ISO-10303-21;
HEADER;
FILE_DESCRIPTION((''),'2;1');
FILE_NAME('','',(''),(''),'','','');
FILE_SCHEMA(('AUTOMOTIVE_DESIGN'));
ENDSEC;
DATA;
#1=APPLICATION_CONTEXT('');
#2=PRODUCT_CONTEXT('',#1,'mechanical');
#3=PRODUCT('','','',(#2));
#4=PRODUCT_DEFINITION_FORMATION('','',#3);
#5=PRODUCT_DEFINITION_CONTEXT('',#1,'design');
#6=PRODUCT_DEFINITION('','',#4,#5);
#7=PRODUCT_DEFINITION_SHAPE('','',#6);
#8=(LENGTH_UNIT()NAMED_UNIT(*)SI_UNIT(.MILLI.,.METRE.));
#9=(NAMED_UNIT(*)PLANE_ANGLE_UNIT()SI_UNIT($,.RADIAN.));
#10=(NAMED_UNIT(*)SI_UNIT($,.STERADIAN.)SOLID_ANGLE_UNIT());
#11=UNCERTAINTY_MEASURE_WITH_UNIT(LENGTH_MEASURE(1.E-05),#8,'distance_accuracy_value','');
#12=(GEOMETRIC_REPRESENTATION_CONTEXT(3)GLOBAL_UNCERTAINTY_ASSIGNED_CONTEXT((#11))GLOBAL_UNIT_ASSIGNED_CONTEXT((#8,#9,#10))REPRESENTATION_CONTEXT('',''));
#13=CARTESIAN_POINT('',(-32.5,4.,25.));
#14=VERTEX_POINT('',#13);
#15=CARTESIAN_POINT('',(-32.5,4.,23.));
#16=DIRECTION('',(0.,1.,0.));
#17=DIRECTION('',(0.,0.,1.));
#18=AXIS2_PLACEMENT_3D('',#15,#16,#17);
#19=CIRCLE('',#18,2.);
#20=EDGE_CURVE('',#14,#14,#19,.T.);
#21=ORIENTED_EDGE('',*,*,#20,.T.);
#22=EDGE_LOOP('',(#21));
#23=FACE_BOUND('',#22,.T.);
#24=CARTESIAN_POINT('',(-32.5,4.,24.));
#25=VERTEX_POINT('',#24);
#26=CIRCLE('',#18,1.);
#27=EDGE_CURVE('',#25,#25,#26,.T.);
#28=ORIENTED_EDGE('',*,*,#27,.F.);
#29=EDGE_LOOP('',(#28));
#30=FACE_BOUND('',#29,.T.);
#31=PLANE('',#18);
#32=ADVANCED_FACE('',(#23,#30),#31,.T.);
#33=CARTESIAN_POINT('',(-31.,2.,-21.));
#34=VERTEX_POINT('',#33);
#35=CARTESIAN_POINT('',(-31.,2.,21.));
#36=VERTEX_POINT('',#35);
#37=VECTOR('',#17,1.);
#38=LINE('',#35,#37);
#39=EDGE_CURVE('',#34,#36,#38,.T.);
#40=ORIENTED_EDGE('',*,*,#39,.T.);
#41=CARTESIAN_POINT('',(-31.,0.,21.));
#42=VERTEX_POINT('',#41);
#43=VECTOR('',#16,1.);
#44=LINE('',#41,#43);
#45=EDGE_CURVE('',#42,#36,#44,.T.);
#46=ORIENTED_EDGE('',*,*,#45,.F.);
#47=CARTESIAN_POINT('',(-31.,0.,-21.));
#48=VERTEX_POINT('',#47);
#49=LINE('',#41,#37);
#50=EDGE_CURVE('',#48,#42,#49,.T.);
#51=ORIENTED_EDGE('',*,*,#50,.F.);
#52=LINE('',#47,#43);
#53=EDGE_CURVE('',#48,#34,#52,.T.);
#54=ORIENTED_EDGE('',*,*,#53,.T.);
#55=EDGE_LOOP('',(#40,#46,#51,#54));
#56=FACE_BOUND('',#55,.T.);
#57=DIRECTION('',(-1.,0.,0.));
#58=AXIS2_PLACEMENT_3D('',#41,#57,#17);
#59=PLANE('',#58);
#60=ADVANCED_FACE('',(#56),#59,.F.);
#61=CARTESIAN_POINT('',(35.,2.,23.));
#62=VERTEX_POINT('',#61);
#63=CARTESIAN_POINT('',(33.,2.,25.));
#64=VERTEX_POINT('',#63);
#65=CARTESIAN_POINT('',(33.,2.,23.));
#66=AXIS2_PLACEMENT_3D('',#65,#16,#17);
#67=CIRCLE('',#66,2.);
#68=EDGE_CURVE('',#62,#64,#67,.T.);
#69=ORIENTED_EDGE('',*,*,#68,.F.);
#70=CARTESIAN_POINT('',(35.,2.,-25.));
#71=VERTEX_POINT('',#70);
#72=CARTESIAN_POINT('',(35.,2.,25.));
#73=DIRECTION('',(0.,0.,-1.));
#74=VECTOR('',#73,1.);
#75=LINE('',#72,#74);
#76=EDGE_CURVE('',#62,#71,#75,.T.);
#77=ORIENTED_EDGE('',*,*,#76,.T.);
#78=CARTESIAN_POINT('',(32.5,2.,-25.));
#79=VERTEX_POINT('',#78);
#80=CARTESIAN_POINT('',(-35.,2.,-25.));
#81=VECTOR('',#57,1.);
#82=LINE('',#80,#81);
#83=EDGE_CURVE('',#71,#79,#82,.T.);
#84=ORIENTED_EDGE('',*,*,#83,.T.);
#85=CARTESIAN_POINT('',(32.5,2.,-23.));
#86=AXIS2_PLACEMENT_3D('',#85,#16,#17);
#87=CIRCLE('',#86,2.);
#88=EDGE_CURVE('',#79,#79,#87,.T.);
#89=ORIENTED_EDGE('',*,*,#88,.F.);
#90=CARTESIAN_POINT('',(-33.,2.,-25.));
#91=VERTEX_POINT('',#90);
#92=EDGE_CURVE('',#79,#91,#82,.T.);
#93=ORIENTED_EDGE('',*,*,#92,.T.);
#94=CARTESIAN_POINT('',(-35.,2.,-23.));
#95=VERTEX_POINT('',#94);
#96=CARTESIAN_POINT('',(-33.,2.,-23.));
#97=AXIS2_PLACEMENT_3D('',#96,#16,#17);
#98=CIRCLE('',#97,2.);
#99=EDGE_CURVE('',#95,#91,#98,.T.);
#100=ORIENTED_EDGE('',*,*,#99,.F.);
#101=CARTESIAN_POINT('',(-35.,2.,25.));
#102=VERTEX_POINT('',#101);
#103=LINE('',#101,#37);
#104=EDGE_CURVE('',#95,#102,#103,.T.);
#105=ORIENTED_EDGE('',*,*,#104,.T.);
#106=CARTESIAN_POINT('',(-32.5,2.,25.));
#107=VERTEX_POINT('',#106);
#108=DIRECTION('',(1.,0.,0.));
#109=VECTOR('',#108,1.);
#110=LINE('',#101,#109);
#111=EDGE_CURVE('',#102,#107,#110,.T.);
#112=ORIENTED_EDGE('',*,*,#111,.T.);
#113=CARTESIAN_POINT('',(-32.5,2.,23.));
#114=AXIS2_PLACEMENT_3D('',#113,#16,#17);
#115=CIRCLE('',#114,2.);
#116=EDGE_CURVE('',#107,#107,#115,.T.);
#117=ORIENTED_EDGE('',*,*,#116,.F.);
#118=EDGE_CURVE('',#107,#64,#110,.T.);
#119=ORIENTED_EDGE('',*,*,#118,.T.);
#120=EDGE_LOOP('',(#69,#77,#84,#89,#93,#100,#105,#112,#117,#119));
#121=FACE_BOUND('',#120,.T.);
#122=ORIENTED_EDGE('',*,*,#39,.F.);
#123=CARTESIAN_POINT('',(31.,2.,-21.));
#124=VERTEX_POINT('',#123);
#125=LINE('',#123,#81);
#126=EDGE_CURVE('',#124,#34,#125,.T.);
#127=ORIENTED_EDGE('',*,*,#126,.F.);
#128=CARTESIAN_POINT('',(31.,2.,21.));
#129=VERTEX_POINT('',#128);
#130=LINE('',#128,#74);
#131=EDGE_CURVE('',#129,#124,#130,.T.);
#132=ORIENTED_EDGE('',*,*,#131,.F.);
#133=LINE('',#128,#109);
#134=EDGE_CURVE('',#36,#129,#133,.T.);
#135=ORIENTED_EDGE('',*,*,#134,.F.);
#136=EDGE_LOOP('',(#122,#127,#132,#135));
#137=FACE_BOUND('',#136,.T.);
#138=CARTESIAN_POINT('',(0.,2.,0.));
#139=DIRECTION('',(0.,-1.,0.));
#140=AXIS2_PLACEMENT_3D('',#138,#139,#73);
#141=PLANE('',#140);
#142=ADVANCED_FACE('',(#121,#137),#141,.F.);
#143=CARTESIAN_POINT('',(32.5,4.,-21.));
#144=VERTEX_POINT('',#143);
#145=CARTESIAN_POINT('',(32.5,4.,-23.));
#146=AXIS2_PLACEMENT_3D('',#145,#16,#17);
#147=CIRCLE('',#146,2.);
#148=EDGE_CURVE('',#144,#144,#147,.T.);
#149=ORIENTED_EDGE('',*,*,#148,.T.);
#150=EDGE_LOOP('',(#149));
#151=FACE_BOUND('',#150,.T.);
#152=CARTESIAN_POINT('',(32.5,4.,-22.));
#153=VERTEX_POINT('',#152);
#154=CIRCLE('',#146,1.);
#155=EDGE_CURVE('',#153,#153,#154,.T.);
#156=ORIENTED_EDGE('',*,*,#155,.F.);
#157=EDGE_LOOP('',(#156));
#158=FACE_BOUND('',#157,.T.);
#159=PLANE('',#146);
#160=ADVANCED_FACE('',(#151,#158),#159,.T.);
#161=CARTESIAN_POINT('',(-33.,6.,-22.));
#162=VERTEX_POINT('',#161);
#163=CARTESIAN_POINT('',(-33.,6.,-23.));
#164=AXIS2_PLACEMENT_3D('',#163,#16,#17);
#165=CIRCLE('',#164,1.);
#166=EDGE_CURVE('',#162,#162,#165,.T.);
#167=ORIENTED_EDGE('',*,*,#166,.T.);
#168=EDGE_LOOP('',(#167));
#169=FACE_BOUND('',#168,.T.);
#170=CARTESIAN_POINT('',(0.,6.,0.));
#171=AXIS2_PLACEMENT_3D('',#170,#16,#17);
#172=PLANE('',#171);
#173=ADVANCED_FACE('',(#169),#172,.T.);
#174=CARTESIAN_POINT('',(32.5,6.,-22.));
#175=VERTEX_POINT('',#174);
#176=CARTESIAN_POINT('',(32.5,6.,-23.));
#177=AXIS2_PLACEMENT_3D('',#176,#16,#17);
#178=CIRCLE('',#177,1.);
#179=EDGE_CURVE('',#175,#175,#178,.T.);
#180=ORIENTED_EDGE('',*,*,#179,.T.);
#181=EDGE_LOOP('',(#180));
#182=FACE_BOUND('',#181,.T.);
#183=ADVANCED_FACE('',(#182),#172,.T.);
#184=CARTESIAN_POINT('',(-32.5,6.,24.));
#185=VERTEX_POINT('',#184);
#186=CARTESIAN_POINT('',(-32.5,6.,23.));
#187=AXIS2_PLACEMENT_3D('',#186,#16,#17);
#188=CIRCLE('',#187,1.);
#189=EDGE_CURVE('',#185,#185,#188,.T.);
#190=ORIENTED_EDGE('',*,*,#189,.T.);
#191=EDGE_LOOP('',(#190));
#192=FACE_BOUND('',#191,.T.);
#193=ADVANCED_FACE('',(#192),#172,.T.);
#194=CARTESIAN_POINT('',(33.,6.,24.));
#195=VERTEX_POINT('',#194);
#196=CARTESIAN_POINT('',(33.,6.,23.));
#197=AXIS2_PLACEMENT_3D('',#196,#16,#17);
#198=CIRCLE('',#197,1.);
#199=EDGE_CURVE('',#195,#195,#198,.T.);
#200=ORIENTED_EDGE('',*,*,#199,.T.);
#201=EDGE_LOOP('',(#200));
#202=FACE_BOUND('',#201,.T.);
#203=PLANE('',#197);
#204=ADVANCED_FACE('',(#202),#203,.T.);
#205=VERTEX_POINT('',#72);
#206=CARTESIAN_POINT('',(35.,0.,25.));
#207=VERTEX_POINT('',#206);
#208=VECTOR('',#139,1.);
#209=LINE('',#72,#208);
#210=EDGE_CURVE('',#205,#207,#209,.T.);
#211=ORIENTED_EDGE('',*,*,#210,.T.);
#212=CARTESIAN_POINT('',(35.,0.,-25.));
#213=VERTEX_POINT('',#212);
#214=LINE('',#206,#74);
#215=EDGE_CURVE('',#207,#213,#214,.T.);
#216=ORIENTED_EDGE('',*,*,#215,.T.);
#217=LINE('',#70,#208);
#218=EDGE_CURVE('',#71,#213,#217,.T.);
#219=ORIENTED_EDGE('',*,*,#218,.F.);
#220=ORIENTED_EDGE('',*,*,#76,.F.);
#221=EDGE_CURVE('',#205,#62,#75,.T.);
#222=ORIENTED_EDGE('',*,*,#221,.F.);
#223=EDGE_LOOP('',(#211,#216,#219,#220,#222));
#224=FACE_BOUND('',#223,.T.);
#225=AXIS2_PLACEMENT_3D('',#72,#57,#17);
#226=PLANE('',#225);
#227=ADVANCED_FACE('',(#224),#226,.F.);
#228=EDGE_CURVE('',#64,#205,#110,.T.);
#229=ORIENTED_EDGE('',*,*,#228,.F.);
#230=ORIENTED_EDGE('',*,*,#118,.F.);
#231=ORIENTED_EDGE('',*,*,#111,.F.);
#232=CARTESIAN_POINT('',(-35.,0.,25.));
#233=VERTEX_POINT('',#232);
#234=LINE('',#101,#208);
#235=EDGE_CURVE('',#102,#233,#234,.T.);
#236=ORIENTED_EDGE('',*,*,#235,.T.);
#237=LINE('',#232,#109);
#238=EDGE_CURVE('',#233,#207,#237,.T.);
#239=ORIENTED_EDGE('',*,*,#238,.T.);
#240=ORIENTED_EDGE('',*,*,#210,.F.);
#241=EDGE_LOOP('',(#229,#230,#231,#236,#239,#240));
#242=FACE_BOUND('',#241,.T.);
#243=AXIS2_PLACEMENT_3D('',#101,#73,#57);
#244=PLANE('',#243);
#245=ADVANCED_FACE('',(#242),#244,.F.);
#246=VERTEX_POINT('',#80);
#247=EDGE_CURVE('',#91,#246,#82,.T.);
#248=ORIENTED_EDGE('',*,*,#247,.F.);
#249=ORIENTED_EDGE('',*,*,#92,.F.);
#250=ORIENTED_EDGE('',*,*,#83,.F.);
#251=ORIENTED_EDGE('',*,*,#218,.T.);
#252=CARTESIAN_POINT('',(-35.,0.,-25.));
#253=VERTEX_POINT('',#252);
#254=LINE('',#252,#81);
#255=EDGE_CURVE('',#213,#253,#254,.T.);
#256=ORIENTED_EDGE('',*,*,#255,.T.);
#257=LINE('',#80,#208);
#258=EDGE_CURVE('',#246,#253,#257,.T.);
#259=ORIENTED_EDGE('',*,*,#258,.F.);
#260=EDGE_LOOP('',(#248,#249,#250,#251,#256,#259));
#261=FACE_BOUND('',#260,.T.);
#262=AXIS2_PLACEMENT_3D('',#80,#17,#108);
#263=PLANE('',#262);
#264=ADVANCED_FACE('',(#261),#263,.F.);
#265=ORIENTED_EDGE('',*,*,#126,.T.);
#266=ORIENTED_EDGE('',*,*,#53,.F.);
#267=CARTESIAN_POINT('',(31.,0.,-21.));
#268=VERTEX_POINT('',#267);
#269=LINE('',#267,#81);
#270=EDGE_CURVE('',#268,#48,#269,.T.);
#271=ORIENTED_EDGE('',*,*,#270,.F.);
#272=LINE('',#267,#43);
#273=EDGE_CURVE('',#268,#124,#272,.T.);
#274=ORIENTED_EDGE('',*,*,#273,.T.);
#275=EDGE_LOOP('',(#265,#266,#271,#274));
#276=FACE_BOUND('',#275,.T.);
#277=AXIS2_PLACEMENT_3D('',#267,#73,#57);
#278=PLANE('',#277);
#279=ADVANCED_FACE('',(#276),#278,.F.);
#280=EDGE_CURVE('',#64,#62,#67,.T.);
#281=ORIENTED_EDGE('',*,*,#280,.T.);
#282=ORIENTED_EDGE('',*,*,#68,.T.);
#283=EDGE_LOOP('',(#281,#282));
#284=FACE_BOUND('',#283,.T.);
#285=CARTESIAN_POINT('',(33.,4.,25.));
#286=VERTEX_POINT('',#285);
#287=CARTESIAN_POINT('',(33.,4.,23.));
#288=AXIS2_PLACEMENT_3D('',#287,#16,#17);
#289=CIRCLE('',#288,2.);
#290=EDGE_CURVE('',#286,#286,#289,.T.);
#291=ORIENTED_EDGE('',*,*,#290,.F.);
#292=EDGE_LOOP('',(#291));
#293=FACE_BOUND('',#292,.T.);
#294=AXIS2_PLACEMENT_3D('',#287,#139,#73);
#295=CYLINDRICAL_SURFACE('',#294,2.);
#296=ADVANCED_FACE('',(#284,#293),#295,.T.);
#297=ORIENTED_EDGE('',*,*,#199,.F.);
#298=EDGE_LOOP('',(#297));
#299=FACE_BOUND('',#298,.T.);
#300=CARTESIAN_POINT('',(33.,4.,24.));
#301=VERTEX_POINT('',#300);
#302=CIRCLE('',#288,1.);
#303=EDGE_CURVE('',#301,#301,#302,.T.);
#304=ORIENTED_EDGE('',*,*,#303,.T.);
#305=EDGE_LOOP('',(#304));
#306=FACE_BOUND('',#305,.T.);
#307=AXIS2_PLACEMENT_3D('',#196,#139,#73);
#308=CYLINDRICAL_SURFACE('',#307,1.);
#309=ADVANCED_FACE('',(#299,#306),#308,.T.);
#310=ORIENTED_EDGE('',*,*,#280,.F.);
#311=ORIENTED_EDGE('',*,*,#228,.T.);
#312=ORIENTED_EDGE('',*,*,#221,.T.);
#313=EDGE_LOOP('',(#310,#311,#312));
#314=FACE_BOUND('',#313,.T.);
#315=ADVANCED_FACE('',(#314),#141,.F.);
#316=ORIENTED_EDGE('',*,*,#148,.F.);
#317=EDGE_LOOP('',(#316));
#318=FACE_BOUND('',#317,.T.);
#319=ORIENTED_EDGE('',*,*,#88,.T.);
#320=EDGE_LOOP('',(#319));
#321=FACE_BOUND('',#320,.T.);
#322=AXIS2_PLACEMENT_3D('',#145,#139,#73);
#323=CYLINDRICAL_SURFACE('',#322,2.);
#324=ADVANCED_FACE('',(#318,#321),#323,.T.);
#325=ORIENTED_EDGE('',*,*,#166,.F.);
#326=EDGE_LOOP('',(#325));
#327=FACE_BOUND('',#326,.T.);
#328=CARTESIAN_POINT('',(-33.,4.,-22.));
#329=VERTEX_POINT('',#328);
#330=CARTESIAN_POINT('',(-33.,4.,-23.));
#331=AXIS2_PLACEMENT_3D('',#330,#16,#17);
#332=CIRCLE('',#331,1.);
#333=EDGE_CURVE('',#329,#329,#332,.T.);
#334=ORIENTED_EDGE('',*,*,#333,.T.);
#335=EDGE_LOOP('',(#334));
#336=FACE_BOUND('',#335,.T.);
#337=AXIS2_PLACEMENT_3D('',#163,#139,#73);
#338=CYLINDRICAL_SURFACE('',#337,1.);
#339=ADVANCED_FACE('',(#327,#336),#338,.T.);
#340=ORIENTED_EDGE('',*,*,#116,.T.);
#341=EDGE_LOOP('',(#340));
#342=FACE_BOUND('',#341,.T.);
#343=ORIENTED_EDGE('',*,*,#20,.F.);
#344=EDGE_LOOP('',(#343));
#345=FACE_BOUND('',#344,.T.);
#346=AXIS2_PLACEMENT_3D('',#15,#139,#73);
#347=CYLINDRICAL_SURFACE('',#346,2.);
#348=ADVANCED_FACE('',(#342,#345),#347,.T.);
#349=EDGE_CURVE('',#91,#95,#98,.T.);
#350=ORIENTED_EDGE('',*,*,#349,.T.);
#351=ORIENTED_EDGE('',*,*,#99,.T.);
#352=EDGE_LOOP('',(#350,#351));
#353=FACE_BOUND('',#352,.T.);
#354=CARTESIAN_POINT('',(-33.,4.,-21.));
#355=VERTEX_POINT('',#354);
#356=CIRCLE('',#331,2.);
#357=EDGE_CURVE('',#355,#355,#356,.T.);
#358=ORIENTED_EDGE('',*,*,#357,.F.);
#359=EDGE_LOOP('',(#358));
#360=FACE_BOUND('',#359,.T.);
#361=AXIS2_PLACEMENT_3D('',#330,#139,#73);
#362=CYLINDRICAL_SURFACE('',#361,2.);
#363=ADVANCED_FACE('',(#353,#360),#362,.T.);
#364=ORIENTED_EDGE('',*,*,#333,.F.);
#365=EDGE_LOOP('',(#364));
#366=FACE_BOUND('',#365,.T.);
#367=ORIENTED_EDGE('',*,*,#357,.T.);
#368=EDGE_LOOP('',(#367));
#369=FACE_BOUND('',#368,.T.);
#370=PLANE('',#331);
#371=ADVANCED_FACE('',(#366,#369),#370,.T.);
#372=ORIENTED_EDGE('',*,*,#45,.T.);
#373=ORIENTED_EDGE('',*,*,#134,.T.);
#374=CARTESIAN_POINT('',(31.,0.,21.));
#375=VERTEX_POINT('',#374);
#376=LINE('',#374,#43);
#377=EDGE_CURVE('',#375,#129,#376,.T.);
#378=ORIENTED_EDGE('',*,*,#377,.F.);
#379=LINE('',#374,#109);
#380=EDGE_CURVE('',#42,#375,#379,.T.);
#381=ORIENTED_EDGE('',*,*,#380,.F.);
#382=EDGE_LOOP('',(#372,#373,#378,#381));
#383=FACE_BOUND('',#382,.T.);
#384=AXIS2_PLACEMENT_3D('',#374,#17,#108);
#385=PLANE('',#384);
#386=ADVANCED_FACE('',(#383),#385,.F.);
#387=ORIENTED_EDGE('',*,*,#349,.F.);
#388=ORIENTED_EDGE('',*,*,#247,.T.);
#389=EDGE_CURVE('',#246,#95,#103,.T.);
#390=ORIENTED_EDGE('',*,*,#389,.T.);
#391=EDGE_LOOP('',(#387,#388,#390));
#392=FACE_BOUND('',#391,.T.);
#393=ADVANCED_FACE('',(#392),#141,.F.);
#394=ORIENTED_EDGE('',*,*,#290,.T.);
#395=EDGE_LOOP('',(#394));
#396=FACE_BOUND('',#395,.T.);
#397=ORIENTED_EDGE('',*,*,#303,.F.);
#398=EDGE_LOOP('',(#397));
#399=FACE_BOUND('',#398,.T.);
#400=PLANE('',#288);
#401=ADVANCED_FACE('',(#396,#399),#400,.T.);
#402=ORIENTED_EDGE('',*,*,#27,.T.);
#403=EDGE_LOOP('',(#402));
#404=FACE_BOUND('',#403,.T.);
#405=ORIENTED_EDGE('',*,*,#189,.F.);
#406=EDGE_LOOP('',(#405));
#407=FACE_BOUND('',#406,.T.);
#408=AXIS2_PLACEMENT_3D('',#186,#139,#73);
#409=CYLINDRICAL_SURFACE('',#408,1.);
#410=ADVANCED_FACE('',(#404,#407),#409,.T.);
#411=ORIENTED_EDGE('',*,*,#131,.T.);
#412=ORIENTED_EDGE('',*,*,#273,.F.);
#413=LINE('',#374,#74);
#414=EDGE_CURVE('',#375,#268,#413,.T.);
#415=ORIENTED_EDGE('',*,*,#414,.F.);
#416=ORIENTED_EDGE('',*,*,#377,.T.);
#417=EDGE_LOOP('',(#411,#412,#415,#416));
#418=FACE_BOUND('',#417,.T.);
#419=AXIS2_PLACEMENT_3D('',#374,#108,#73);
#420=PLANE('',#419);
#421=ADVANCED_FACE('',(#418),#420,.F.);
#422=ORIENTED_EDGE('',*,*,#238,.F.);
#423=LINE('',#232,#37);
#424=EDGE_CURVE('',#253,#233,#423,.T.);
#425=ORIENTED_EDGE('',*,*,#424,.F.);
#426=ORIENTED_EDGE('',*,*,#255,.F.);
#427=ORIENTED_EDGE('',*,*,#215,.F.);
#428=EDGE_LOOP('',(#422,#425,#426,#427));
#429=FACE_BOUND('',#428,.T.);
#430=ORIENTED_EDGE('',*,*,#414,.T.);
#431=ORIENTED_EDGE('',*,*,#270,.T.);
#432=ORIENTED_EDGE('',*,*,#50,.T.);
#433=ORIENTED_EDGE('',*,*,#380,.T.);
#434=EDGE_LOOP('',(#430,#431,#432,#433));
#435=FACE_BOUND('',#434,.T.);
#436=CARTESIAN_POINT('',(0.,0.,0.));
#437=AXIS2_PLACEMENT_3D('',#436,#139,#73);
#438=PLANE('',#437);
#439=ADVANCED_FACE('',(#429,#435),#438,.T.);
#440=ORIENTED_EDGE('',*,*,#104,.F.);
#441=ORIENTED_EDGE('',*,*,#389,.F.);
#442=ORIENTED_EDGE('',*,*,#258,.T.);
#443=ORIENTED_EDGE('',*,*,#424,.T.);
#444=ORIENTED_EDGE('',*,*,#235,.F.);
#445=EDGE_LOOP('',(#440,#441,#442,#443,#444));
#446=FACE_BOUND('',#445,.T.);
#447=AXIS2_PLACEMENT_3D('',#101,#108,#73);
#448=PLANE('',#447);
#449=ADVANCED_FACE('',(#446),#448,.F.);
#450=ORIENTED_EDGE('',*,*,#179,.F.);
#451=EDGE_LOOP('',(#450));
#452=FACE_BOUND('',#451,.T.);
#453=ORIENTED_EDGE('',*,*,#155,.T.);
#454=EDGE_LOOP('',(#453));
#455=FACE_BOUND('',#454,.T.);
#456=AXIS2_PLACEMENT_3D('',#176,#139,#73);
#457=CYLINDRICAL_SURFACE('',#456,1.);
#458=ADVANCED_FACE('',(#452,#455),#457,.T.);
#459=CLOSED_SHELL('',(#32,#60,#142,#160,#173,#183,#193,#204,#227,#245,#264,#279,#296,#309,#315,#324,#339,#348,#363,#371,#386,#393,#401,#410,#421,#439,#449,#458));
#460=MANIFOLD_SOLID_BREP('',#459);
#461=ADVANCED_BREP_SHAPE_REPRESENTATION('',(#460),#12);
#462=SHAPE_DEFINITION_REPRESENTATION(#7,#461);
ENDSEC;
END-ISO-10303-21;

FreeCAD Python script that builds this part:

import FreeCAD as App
import Part
import Sketcher

V = App.Vector


def add_polygon(sketch, points):
    """Adds a closed chain of lines whose ends are joined by coincident constraints."""
    first, n = sketch.GeometryCount, len(points)
    for a, b in zip(points, points[1:] + points[:1]):
        sketch.addGeometry(Part.LineSegment(App.Vector(*a, 0), App.Vector(*b, 0)), False)
    for i in range(n):
        sketch.addConstraint(Sketcher.Constraint("Coincident", first + i, 2, first + (i + 1) % n, 1))

doc = App.newDocument("Part")
body = doc.addObject("PartDesign::Body", "Body")

sketch1 = body.newObject("Sketcher::SketchObject", "Sketch")
sketch1.AttachmentSupport = (doc.getObject("XZ_Plane"), [""])
sketch1.MapMode = "FlatFace"
add_polygon(sketch1, [(-35, -25), (-35, 25), (35, 25), (35, -25)])
sketch1.addConstraint([
    Sketcher.Constraint("Vertical", 0),
    Sketcher.Constraint("Horizontal", 1),
    Sketcher.Constraint("Vertical", 2),
    Sketcher.Constraint("Horizontal", 3),
    Sketcher.Constraint("Symmetric", 0, 2, 2, 2, -1, 1),
    Sketcher.Constraint("DistanceX", 1, 1, 1, 2, 70.0),
    Sketcher.Constraint("DistanceY", 0, 1, 0, 2, 50.0),
])
pad1 = body.newObject("PartDesign::Pad", "Pad")
pad1.Profile = sketch1
pad1.Length = 2
pad1.Reversed = True

sketch2 = body.newObject("Sketcher::SketchObject", "Sketch001")
sketch2.AttachmentSupport = (doc.getObject("XZ_Plane"), [""])
sketch2.MapMode = "FlatFace"
sketch2.AttachmentOffset = App.Placement(V(0, 0, -2), App.Rotation())
sketch2.addGeometry([
    Part.Circle(V(-32.5, 23, 0), V(0, 0, 1), 1),
    Part.Circle(V(-33, -23, 0), V(0, 0, 1), 1),
    Part.Circle(V(32.5, -23, 0), V(0, 0, 1), 1),
    Part.Circle(V(33, 23, 0), V(0, 0, 1), 1),
], False)
sketch2.addConstraint([
    Sketcher.Constraint("Equal", 0, 1),
    Sketcher.Constraint("Equal", 1, 2),
    Sketcher.Constraint("Equal", 2, 3),
    Sketcher.Constraint("Symmetric", 0, 3, 2, 3, -1, 1),
    Sketcher.Constraint("Symmetric", 1, 3, 3, 3, -1, 1),
    Sketcher.Constraint("Horizontal", 1, 3, 2, 3),
    Sketcher.Constraint("Diameter", 0, 2.0),
    Sketcher.Constraint("DistanceY", -1, 1, 0, 3, 23.0),
    Sketcher.Constraint("DistanceX", 1, 3, -1, 1, 33.0),
    Sketcher.Constraint("DistanceX", 0, 3, 2, 3, 65.0),
])
pad2 = body.newObject("PartDesign::Pad", "Pad001")
pad2.Profile = sketch2
pad2.Length = 4
pad2.Reversed = True

sketch3 = body.newObject("Sketcher::SketchObject", "Sketch002")
sketch3.AttachmentSupport = (doc.getObject("XZ_Plane"), [""])
sketch3.MapMode = "FlatFace"
sketch3.AttachmentOffset = App.Placement(V(0, 0, -2), App.Rotation())
sketch3.addGeometry([
    Part.Circle(V(-33, -23, 0), V(0, 0, 1), 2),
    Part.Circle(V(32.5, -23, 0), V(0, 0, 1), 2),
    Part.Circle(V(33, 23, 0), V(0, 0, 1), 2),
    Part.Circle(V(-32.5, 23, 0), V(0, 0, 1), 2),
], False)
sketch3.addConstraint([
    Sketcher.Constraint("Equal", 0, 1),
    Sketcher.Constraint("Equal", 1, 2),
    Sketcher.Constraint("Equal", 2, 3),
    Sketcher.Constraint("Symmetric", 0, 3, 2, 3, -1, 1),
    Sketcher.Constraint("Symmetric", 1, 3, 3, 3, -1, 1),
    Sketcher.Constraint("Horizontal", 0, 3, 1, 3),
    Sketcher.Constraint("Diameter", 0, 4.0),
    Sketcher.Constraint("DistanceX", 0, 3, -1, 1, 33.0),
    Sketcher.Constraint("DistanceY", 0, 3, -1, 1, 23.0),
    Sketcher.Constraint("DistanceX", 3, 3, 1, 3, 65.0),
])
pad3 = body.newObject("PartDesign::Pad", "Pad002")
pad3.Profile = sketch3
pad3.Length = 2
pad3.Reversed = True

sketch4 = body.newObject("Sketcher::SketchObject", "Sketch003")
sketch4.AttachmentSupport = (doc.getObject("XZ_Plane"), [""])
sketch4.MapMode = "FlatFace"
sketch4.AttachmentOffset = App.Placement(V(0, 0, -2), App.Rotation())
add_polygon(sketch4, [(-31, -21), (-31, 21), (31, 21), (31, -21)])
sketch4.addConstraint([
    Sketcher.Constraint("Vertical", 0),
    Sketcher.Constraint("Horizontal", 1),
    Sketcher.Constraint("Vertical", 2),
    Sketcher.Constraint("Horizontal", 3),
    Sketcher.Constraint("Symmetric", 0, 2, 2, 2, -1, 1),
    Sketcher.Constraint("DistanceX", 1, 1, 1, 2, 62.0),
    Sketcher.Constraint("DistanceY", 0, 1, 0, 2, 42.0),
])
pocket1 = body.newObject("PartDesign::Pocket", "Pocket")
pocket1.Profile = sketch4
pocket1.Length = 2
pocket1.Reversed = True

doc.recompute()
